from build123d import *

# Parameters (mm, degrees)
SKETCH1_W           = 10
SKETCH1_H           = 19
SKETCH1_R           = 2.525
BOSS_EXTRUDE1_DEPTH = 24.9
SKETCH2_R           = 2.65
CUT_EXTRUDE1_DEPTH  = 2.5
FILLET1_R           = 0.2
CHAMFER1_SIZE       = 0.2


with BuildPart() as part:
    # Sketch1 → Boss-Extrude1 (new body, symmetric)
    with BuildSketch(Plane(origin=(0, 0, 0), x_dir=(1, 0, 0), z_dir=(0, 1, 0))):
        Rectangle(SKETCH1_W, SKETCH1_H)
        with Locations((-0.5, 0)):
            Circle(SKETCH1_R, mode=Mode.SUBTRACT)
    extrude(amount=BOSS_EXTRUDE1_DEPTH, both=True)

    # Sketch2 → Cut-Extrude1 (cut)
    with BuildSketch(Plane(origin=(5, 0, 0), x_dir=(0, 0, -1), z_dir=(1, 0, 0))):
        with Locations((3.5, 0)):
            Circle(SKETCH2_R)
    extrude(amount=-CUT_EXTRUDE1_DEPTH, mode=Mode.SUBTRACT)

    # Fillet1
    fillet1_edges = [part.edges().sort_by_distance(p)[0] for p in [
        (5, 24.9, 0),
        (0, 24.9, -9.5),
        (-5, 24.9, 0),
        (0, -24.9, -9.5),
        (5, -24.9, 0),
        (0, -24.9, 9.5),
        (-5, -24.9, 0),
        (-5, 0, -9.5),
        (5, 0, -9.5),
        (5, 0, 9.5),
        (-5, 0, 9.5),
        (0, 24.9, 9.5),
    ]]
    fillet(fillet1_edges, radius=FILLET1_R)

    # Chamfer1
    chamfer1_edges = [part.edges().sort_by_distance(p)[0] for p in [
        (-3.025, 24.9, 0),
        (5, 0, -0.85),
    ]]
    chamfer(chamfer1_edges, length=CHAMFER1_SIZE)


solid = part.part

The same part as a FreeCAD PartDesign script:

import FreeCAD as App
import Part
import Sketcher
Q = App.Units.Quantity


def edges_at(feature, points):
    """Names of the edges that pass closest to the given points."""
    edges = feature.Shape.Edges
    near = lambda p: min(range(len(edges)), key=lambda i: edges[i].distToShape(Part.Vertex(*p))[0])
    return sorted({f"Edge{near(p) + 1}" for p in points})

doc = App.newDocument("Part")
body = doc.addObject("PartDesign::Body", "Body")

sketch1 = doc.addObject("Sketcher::SketchObject", "Sketch")
body.addObject(sketch1)
sketch1.AttachmentSupport = (doc.XZ_Plane, [""])
sketch1.MapMode = "FlatFace"
sketch1.addGeometry([
    Part.LineSegment(App.Vector(-5, -9.5, 0), App.Vector(-5, 9.5, 0)),
    Part.LineSegment(App.Vector(-5, 9.5, 0), App.Vector(5, 9.5, 0)),
    Part.LineSegment(App.Vector(5, 9.5, 0), App.Vector(5, -9.5, 0)),
    Part.LineSegment(App.Vector(5, -9.5, 0), App.Vector(-5, -9.5, 0)),
    Part.Circle(App.Vector(-0.5, 0, 0), App.Vector(0, 0, 1), 2.5),
], False)
sketch1.addConstraint([
    Sketcher.Constraint("Coincident", 0, 2, 1, 1),
    Sketcher.Constraint("Coincident", 1, 2, 2, 1),
    Sketcher.Constraint("Coincident", 2, 2, 3, 1),
    Sketcher.Constraint("Coincident", 3, 2, 0, 1),
    Sketcher.Constraint("Vertical", 0),
    Sketcher.Constraint("Horizontal", 1),
    Sketcher.Constraint("Vertical", 2),
    Sketcher.Constraint("Horizontal", 3),
    Sketcher.Constraint("Symmetric", 0, 2, 2, 2, -1, 1),
    Sketcher.Constraint("PointOnObject", 4, 3, -1),
    Sketcher.Constraint("Diameter", 4, Q("5.05 mm")),
    Sketcher.Constraint("DistanceX", 1, 1, 1, 2, Q("10 mm")),
    Sketcher.Constraint("DistanceY", 0, 1, 0, 2, Q("19 mm")),
    Sketcher.Constraint("DistanceX", 4, 3, -1, 1, Q("0.5 mm")),
])
pad1 = doc.addObject("PartDesign::Pad", "Pad")
body.addObject(pad1)
pad1.Profile = sketch1
pad1.Length = 49.8
pad1.Midplane = True

sketch2 = doc.addObject("Sketcher::SketchObject", "Sketch001")
body.addObject(sketch2)
sketch2.AttachmentSupport = (doc.YZ_Plane, [""])
sketch2.MapMode = "FlatFace"
sketch2.AttachmentOffset = App.Placement(App.Vector(0, 0, 5), App.Rotation())
sketch2.addGeometry(Part.Circle(App.Vector(0, -3.5, 0), App.Vector(0, 0, 1), 2.6), False)
sketch2.addConstraint([
    Sketcher.Constraint("PointOnObject", 0, 3, -2),
    Sketcher.Constraint("Diameter", 0, Q("5.3 mm")),
    Sketcher.Constraint("DistanceY", 0, 3, -1, 1, Q("3.5 mm")),
])
pocket1 = doc.addObject("PartDesign::Pocket", "Pocket")
body.addObject(pocket1)
pocket1.Profile = sketch2
pocket1.Length = 2.5
doc.recompute()

fillet = doc.addObject("PartDesign::Fillet", "Fillet")
body.addObject(fillet)
fillet.Base = (pocket1, edges_at(pocket1, [
    (5, 24.9, 0),
    (0, 24.9, -9.5),
    (-5, 24.9, 0),
    (0, -24.9, -9.5),
    (5, -24.9, 0),
    (0, -24.9, 9.5),
    (-5, -24.9, 0),
    (-5, 0, -9.5),
    (5, 0, -9.5),
    (5, 0, 9.5),
    (-5, 0, 9.5),
    (0, 24.9, 9.5),
]))
fillet.Radius = 0.2
doc.recompute()

chamfer = doc.addObject("PartDesign::Chamfer", "Chamfer")
body.addObject(chamfer)
chamfer.Base = (fillet, edges_at(fillet, [(-3.025, 24.9, 0), (5, 0, -0.85)]))
chamfer.Size = 0.2

doc.recompute()
